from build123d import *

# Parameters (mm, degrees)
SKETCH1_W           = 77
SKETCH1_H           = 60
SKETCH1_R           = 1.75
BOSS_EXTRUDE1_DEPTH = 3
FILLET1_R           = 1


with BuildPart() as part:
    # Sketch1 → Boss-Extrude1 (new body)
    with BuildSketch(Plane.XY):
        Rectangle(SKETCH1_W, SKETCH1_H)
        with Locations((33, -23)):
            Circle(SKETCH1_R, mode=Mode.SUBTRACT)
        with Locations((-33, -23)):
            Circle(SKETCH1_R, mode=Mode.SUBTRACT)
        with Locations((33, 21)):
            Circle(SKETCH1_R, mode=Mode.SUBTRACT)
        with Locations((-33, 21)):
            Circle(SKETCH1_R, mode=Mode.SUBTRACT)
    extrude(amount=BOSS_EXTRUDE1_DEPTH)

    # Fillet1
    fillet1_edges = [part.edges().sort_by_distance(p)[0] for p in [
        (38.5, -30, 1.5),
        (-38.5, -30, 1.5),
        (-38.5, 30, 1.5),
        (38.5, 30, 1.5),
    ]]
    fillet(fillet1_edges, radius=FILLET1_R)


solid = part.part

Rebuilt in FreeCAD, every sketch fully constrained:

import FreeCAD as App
import Part
import Sketcher

V = App.Vector


def edges_at(feature, points):
    """Names of the edges that pass closest to the given points."""
    edges = feature.Shape.Edges
    near = lambda p: min(range(len(edges)), key=lambda i: edges[i].distToShape(Part.Vertex(*p))[0])
    return sorted({f"Edge{near(p) + 1}" for p in points})


def add_polygon(sketch, points):
    """Adds a closed chain of lines whose ends are joined by coincident constraints."""
    first, n = sketch.GeometryCount, len(points)
    for a, b in zip(points, points[1:] + points[:1]):
        sketch.addGeometry(Part.LineSegment(App.Vector(*a, 0), App.Vector(*b, 0)), False)
    for i in range(n):
        sketch.addConstraint(Sketcher.Constraint("Coincident", first + i, 2, first + (i + 1) % n, 1))

doc = App.newDocument("Part")
body = doc.addObject("PartDesign::Body", "Body")

sketch1 = doc.addObject("Sketcher::SketchObject", "Sketch")
body.addObject(sketch1)
sketch1.AttachmentSupport = (doc.XY_Plane, [""])
sketch1.MapMode = "FlatFace"
add_polygon(sketch1, [(-38.5, 30), (-38.5, -30), (38.5, -30), (38.5, 30)])
sketch1.addGeometry(Part.Circle(V(-33, -23, 0), V(0, 0, 1), 1.8), False)
sketch1.addGeometry(Part.Circle(V(33, -23, 0), V(0, 0, 1), 1.8), False)
sketch1.addGeometry(Part.Circle(V(-33, 21, 0), V(0, 0, 1), 1.8), False)
sketch1.addGeometry(Part.Circle(V(33, 21, 0), V(0, 0, 1), 1.8), False)
sketch1.addConstraint([
    Sketcher.Constraint("Vertical", 0),
    Sketcher.Constraint("Horizontal", 1),
    Sketcher.Constraint("Vertical", 2),
    Sketcher.Constraint("Horizontal", 3),
    Sketcher.Constraint("Equal", 4, 5),
    Sketcher.Constraint("Equal", 5, 6),
    Sketcher.Constraint("Equal", 6, 7),
    Sketcher.Constraint("Symmetric", 0, 2, 2, 2, -1, 1),
    Sketcher.Constraint("Symmetric", 4, 3, 5, 3, -2),
    Sketcher.Constraint("Symmetric", 6, 3, 7, 3, -2),
    Sketcher.Constraint("Vertical", 4, 3, 6, 3),
    Sketcher.Constraint("Diameter", 4, 3.5),
    Sketcher.Constraint("DistanceX", 1, 1, 1, 2, 77.0),
    Sketcher.Constraint("DistanceY", 0, 2, 0, 1, 60.0),
    Sketcher.Constraint("DistanceX", 4, 3, -1, 1, 33.0),
    Sketcher.Constraint("DistanceY", 4, 3, -1, 1, 23.0),
    Sketcher.Constraint("DistanceY", -1, 1, 6, 3, 21.0),
])
pad1 = doc.addObject("PartDesign::Pad", "Pad")
body.addObject(pad1)
pad1.Profile = sketch1
pad1.Length = 3
doc.recompute()

fillet = doc.addObject("PartDesign::Fillet", "Fillet")
body.addObject(fillet)
fillet.Base = (pad1, edges_at(pad1, [
    (38.5, -30, 1.5),
    (-38.5, -30, 1.5),
    (-38.5, 30, 1.5),
    (38.5, 30, 1.5),
]))
fillet.Radius = 1

doc.recompute()
